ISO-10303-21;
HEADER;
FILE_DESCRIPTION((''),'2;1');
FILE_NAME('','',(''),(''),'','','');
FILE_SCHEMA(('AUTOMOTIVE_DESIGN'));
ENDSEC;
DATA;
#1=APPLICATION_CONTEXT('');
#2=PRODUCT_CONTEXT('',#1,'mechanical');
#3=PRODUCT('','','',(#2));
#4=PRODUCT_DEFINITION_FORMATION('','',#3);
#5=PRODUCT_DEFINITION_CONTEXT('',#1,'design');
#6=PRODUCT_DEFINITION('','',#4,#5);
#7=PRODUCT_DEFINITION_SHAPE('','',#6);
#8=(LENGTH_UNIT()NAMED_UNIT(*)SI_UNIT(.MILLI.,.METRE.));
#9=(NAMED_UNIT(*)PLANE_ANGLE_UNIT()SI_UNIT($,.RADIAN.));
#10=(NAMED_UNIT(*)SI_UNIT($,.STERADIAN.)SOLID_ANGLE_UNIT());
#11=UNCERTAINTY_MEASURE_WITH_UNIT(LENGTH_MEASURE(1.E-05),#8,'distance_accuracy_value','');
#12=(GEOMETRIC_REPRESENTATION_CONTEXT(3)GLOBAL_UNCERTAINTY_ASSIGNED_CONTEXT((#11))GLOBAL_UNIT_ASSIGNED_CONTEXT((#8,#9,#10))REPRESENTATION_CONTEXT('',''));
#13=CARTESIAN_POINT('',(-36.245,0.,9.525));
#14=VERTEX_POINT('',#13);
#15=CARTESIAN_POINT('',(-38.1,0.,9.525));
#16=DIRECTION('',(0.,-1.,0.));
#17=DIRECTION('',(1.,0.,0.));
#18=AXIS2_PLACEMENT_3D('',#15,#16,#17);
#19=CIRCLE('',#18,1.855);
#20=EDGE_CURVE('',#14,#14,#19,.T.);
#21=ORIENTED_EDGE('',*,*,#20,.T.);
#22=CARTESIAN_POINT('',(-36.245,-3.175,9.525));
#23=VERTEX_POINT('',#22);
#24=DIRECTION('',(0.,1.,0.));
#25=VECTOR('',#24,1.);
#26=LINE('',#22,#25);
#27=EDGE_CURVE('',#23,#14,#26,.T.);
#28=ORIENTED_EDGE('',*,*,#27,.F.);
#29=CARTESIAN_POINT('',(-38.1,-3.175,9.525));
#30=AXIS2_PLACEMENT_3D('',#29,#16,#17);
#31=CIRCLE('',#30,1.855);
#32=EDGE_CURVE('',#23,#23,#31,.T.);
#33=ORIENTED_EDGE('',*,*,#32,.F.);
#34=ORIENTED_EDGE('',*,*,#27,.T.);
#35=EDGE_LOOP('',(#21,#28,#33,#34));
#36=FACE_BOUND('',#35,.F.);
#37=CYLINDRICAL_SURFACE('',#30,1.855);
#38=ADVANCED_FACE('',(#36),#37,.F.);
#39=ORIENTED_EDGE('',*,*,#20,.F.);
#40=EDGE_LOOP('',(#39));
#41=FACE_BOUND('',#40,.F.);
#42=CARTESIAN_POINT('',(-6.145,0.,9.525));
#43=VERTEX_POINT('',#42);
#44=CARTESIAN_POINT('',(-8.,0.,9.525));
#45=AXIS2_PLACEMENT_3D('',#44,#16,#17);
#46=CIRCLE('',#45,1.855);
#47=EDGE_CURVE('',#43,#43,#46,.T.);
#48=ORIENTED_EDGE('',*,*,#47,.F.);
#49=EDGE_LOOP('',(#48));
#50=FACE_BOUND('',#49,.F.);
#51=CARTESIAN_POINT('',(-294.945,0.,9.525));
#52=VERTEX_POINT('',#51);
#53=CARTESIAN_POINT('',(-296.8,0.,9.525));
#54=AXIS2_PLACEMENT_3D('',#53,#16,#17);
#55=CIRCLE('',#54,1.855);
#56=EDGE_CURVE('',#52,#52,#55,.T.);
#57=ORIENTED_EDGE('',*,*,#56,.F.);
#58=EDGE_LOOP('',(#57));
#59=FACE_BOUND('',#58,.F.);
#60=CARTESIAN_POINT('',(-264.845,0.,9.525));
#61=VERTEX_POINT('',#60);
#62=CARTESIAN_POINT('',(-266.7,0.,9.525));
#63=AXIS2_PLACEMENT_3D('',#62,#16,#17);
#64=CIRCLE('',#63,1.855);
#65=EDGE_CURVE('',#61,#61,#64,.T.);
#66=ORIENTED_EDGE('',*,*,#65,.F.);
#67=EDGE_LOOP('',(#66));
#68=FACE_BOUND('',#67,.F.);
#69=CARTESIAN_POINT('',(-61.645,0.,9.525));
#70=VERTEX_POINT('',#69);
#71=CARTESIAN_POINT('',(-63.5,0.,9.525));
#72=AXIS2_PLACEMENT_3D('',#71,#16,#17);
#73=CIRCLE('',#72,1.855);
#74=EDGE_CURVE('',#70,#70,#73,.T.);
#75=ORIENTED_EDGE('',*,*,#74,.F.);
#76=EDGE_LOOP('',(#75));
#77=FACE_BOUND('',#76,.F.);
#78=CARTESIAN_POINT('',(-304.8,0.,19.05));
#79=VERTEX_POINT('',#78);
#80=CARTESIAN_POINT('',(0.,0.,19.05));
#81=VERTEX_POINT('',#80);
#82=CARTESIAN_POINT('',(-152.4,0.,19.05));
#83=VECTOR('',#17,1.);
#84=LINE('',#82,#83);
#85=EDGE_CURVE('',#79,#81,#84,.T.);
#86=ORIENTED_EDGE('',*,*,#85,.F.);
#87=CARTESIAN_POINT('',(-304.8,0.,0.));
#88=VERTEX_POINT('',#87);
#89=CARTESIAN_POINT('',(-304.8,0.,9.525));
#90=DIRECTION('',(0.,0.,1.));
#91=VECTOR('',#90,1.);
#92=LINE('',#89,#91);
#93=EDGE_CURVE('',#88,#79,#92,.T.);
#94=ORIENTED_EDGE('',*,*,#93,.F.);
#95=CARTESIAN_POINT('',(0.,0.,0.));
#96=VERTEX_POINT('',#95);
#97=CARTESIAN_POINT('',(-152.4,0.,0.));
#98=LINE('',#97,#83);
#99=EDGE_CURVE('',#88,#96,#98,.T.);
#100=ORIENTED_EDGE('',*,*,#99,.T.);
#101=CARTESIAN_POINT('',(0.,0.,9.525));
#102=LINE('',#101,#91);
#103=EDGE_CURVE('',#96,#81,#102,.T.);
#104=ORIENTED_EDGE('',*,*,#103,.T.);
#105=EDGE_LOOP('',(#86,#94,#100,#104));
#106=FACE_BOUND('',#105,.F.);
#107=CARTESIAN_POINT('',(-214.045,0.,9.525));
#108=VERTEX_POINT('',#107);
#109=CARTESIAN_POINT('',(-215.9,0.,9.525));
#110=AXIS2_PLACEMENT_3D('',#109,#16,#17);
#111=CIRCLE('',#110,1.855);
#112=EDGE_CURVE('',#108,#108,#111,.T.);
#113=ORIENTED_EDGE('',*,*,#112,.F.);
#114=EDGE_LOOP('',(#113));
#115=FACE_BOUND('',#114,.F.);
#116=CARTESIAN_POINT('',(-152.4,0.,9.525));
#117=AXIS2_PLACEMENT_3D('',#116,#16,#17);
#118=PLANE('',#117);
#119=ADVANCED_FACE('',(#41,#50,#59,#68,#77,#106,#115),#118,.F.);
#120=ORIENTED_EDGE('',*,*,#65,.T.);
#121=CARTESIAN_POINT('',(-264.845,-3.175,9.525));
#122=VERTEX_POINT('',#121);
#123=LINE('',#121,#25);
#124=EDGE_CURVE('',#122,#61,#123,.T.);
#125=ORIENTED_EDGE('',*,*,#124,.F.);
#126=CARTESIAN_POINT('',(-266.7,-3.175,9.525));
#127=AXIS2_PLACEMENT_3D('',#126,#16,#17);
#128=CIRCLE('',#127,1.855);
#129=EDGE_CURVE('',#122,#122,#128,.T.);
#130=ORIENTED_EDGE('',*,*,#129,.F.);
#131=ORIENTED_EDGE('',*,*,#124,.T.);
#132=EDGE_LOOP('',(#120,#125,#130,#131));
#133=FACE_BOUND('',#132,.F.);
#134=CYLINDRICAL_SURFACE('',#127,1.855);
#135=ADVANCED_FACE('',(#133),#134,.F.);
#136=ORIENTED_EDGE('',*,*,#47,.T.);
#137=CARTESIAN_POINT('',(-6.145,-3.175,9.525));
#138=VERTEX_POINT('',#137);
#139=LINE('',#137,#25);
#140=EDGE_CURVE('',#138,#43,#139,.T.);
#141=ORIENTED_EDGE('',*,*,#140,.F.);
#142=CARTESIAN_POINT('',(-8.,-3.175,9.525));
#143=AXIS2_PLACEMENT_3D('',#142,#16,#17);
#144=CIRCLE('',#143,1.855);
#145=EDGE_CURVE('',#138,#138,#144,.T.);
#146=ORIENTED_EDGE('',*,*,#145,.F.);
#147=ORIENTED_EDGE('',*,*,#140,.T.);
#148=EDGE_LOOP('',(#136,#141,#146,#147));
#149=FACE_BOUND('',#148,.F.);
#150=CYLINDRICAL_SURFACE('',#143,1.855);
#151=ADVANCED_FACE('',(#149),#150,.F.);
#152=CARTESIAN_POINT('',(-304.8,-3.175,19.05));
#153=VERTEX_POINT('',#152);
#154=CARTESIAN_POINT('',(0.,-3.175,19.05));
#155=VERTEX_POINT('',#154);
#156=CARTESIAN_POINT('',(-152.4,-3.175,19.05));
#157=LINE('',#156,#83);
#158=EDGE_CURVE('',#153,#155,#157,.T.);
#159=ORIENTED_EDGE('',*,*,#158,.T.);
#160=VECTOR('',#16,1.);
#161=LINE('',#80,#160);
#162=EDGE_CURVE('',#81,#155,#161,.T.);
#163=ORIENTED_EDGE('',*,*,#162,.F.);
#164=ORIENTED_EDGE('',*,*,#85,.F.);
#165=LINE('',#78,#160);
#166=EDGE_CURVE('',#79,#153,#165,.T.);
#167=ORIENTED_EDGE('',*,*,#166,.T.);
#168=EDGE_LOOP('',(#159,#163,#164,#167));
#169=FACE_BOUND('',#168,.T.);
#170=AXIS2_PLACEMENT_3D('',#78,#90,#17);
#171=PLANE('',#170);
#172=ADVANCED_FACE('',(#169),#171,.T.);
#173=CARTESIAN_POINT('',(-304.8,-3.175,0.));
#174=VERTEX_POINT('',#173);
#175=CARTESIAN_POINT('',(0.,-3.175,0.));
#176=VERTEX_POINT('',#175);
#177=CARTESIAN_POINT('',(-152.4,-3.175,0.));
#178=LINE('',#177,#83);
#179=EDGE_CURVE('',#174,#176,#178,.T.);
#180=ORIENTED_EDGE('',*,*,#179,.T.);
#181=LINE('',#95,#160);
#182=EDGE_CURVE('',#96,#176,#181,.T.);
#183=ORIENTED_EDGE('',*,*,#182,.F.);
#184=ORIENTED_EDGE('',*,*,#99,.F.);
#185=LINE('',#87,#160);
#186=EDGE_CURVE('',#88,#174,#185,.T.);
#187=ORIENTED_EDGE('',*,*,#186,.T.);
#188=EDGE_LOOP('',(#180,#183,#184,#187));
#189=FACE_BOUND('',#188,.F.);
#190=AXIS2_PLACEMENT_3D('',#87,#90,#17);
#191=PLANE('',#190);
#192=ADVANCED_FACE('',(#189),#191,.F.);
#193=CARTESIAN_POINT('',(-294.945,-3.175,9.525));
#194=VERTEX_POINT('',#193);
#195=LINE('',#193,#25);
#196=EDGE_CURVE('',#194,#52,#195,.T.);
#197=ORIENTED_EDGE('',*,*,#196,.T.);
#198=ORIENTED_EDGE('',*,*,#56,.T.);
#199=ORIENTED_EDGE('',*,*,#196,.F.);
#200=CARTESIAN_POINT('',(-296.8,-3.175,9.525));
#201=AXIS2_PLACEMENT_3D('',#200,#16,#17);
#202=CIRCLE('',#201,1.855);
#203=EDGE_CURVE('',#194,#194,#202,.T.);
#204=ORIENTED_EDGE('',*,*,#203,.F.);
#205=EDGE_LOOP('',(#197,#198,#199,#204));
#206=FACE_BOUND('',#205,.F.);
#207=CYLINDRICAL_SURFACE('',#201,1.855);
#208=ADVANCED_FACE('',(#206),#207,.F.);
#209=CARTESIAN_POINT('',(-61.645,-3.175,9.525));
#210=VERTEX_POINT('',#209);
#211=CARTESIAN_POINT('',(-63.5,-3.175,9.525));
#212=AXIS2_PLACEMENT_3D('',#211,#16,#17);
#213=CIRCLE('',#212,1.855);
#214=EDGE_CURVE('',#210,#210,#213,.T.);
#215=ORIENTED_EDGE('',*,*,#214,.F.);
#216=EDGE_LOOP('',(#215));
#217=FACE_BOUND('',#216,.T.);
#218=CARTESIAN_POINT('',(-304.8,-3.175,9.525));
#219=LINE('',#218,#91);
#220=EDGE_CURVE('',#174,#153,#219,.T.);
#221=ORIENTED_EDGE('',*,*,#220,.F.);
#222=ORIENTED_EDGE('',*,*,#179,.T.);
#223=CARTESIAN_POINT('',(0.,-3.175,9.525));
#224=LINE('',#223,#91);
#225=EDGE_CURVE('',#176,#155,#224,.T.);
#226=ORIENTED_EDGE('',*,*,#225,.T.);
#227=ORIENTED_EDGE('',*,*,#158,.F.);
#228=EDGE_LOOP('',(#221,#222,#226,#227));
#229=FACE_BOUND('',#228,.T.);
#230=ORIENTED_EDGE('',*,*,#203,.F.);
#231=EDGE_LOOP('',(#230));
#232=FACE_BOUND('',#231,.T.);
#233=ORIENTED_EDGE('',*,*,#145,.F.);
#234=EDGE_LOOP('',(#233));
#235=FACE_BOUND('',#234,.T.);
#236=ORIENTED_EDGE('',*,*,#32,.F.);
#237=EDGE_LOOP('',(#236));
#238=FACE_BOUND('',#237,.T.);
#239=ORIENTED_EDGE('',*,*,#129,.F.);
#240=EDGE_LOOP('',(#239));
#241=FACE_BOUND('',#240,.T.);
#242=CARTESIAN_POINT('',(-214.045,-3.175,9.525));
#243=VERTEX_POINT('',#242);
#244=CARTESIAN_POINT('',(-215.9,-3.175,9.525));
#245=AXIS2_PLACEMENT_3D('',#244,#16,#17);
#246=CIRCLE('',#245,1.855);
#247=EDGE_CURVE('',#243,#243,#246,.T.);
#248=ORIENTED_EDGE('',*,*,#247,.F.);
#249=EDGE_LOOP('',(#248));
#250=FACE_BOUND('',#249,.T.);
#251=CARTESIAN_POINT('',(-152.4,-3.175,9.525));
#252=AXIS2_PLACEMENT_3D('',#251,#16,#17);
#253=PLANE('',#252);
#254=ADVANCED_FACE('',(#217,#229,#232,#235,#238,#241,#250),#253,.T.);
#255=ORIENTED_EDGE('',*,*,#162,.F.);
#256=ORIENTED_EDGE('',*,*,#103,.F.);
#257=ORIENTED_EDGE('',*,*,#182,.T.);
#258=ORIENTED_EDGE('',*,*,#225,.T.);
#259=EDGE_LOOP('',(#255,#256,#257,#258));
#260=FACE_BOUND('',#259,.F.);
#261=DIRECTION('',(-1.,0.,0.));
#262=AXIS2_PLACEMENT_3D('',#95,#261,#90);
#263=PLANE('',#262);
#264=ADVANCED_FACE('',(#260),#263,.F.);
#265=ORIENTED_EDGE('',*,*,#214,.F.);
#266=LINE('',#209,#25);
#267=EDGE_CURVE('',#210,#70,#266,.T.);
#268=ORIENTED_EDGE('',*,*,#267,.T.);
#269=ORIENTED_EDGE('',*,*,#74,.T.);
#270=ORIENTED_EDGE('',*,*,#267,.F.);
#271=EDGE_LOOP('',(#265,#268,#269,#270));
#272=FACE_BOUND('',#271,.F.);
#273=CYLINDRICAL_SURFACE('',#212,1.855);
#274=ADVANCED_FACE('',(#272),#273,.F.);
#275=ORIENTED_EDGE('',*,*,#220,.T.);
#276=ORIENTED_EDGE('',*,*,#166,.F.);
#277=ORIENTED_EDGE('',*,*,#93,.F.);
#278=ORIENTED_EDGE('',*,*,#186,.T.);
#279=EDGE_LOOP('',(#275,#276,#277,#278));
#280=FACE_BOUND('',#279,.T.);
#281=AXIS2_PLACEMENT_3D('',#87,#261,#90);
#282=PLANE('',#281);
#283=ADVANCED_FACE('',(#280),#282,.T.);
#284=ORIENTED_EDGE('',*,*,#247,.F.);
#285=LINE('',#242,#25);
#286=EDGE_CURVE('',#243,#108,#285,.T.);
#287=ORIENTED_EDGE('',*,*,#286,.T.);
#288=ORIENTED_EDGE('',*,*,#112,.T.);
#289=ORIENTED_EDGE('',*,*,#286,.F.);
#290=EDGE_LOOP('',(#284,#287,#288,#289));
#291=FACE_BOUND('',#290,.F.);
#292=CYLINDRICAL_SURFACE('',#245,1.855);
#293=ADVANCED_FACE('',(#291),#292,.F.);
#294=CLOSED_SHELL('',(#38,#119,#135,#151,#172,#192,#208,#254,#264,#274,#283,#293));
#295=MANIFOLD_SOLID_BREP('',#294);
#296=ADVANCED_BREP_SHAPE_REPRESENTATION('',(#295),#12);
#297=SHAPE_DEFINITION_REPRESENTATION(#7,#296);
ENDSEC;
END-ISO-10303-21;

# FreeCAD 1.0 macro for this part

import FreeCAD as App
import Part
import Sketcher

V = App.Vector
Q = App.Units.Quantity

doc = App.newDocument("Part")
body = doc.addObject("PartDesign::Body", "Body")

sketch1 = doc.addObject("Sketcher::SketchObject", "Sketch")
body.addObject(sketch1)
sketch1.AttachmentSupport = (doc.XZ_Plane, [""])
sketch1.MapMode = "FlatFace"
sketch1.addGeometry(Part.LineSegment(V(-304.8, 19.05, 0), V(-304.8, 0, 0)), False)
sketch1.addGeometry(Part.LineSegment(V(-304.8, 0, 0), V(0, 0, 0)), False)
sketch1.addGeometry(Part.LineSegment(V(0, 0, 0), V(0, 19.05, 0)), False)
sketch1.addGeometry(Part.LineSegment(V(0, 19.05, 0), V(-304.8, 19.05, 0)), False)
sketch1.addConstraint(Sketcher.Constraint("Coincident", 0, 2, 1, 1))
sketch1.addConstraint(Sketcher.Constraint("Coincident", 1, 2, 2, 1))
sketch1.addConstraint(Sketcher.Constraint("Coincident", 2, 2, 3, 1))
sketch1.addConstraint(Sketcher.Constraint("Coincident", 3, 2, 0, 1))
sketch1.addConstraint(Sketcher.Constraint("Vertical", 0))
sketch1.addConstraint(Sketcher.Constraint("Horizontal", 1))
sketch1.addConstraint(Sketcher.Constraint("Vertical", 2))
sketch1.addConstraint(Sketcher.Constraint("Horizontal", 3))
sketch1.addConstraint(Sketcher.Constraint("Coincident", 1, 2, -1, 1))
sketch1.addConstraint(Sketcher.Constraint("DistanceX", 1, 1, 1, 2, Q("12 in")))
sketch1.addConstraint(Sketcher.Constraint("DistanceY", 0, 2, 0, 1, Q("0.75 in")))
pad1 = doc.addObject("PartDesign::Pad", "Pad")
body.addObject(pad1)
pad1.Profile = sketch1
pad1.Length = Q("0.125 in")

sketch2 = doc.addObject("Sketcher::SketchObject", "Sketch001")
body.addObject(sketch2)
sketch2.AttachmentSupport = (doc.XZ_Plane, [""])
sketch2.MapMode = "FlatFace"
sketch2.AttachmentOffset = App.Placement(V(0, 0, 0.125 * 25.4), App.Rotation())
sketch2.addGeometry(Part.Circle(V(-296.8, 9.525, 0), V(0, 0, 1), 1.855), False)
sketch2.addGeometry(Part.Circle(V(-266.7, 9.525, 0), V(0, 0, 1), 1.855), False)
sketch2.addGeometry(Part.Circle(V(-215.9, 9.525, 0), V(0, 0, 1), 1.855), False)
sketch2.addGeometry(Part.Circle(V(-63.5, 9.525, 0), V(0, 0, 1), 1.855), False)
sketch2.addGeometry(Part.Circle(V(-38.1, 9.525, 0), V(0, 0, 1), 1.855), False)
sketch2.addGeometry(Part.Circle(V(-8, 9.525, 0), V(0, 0, 1), 1.855), False)
sketch2.addConstraint(Sketcher.Constraint("Equal", 0, 1))
sketch2.addConstraint(Sketcher.Constraint("Equal", 1, 2))
sketch2.addConstraint(Sketcher.Constraint("Equal", 2, 3))
sketch2.addConstraint(Sketcher.Constraint("Equal", 3, 4))
sketch2.addConstraint(Sketcher.Constraint("Equal", 4, 5))
sketch2.addConstraint(Sketcher.Constraint("Horizontal", 0, 3, 1, 3))
sketch2.addConstraint(Sketcher.Constraint("Horizontal", 1, 3, 2, 3))
sketch2.addConstraint(Sketcher.Constraint("Horizontal", 2, 3, 3, 3))
sketch2.addConstraint(Sketcher.Constraint("Horizontal", 3, 3, 4, 3))
sketch2.addConstraint(Sketcher.Constraint("Horizontal", 4, 3, 5, 3))
sketch2.addConstraint(Sketcher.Constraint("DistanceX", 1, 3, 2, 3, Q("2 in")))
sketch2.addConstraint(Sketcher.Constraint("DistanceX", 2, 3, 3, 3, Q("6 in")))
sketch2.addConstraint(Sketcher.Constraint("DistanceX", 3, 3, 4, 3, Q("1 in")))
sketch2.addConstraint(Sketcher.Constraint("DistanceX", 1, 3, -1, 1, Q("10.5 in")))
sketch2.addConstraint(Sketcher.Constraint("Diameter", 0, Q("3.71 mm")))
sketch2.addConstraint(Sketcher.Constraint("DistanceY", -1, 1, 0, 3, Q("0.375 in")))
sketch2.addConstraint(Sketcher.Constraint("DistanceX", 0, 3, -1, 1, Q("296.8 mm")))
sketch2.addConstraint(Sketcher.Constraint("DistanceX", 5, 3, -1, 1, Q("8 mm")))
pocket1 = doc.addObject("PartDesign::Pocket", "Pocket")
body.addObject(pocket1)
pocket1.Profile = sketch2
pocket1.Length = Q("1 in")

doc.recompute()
